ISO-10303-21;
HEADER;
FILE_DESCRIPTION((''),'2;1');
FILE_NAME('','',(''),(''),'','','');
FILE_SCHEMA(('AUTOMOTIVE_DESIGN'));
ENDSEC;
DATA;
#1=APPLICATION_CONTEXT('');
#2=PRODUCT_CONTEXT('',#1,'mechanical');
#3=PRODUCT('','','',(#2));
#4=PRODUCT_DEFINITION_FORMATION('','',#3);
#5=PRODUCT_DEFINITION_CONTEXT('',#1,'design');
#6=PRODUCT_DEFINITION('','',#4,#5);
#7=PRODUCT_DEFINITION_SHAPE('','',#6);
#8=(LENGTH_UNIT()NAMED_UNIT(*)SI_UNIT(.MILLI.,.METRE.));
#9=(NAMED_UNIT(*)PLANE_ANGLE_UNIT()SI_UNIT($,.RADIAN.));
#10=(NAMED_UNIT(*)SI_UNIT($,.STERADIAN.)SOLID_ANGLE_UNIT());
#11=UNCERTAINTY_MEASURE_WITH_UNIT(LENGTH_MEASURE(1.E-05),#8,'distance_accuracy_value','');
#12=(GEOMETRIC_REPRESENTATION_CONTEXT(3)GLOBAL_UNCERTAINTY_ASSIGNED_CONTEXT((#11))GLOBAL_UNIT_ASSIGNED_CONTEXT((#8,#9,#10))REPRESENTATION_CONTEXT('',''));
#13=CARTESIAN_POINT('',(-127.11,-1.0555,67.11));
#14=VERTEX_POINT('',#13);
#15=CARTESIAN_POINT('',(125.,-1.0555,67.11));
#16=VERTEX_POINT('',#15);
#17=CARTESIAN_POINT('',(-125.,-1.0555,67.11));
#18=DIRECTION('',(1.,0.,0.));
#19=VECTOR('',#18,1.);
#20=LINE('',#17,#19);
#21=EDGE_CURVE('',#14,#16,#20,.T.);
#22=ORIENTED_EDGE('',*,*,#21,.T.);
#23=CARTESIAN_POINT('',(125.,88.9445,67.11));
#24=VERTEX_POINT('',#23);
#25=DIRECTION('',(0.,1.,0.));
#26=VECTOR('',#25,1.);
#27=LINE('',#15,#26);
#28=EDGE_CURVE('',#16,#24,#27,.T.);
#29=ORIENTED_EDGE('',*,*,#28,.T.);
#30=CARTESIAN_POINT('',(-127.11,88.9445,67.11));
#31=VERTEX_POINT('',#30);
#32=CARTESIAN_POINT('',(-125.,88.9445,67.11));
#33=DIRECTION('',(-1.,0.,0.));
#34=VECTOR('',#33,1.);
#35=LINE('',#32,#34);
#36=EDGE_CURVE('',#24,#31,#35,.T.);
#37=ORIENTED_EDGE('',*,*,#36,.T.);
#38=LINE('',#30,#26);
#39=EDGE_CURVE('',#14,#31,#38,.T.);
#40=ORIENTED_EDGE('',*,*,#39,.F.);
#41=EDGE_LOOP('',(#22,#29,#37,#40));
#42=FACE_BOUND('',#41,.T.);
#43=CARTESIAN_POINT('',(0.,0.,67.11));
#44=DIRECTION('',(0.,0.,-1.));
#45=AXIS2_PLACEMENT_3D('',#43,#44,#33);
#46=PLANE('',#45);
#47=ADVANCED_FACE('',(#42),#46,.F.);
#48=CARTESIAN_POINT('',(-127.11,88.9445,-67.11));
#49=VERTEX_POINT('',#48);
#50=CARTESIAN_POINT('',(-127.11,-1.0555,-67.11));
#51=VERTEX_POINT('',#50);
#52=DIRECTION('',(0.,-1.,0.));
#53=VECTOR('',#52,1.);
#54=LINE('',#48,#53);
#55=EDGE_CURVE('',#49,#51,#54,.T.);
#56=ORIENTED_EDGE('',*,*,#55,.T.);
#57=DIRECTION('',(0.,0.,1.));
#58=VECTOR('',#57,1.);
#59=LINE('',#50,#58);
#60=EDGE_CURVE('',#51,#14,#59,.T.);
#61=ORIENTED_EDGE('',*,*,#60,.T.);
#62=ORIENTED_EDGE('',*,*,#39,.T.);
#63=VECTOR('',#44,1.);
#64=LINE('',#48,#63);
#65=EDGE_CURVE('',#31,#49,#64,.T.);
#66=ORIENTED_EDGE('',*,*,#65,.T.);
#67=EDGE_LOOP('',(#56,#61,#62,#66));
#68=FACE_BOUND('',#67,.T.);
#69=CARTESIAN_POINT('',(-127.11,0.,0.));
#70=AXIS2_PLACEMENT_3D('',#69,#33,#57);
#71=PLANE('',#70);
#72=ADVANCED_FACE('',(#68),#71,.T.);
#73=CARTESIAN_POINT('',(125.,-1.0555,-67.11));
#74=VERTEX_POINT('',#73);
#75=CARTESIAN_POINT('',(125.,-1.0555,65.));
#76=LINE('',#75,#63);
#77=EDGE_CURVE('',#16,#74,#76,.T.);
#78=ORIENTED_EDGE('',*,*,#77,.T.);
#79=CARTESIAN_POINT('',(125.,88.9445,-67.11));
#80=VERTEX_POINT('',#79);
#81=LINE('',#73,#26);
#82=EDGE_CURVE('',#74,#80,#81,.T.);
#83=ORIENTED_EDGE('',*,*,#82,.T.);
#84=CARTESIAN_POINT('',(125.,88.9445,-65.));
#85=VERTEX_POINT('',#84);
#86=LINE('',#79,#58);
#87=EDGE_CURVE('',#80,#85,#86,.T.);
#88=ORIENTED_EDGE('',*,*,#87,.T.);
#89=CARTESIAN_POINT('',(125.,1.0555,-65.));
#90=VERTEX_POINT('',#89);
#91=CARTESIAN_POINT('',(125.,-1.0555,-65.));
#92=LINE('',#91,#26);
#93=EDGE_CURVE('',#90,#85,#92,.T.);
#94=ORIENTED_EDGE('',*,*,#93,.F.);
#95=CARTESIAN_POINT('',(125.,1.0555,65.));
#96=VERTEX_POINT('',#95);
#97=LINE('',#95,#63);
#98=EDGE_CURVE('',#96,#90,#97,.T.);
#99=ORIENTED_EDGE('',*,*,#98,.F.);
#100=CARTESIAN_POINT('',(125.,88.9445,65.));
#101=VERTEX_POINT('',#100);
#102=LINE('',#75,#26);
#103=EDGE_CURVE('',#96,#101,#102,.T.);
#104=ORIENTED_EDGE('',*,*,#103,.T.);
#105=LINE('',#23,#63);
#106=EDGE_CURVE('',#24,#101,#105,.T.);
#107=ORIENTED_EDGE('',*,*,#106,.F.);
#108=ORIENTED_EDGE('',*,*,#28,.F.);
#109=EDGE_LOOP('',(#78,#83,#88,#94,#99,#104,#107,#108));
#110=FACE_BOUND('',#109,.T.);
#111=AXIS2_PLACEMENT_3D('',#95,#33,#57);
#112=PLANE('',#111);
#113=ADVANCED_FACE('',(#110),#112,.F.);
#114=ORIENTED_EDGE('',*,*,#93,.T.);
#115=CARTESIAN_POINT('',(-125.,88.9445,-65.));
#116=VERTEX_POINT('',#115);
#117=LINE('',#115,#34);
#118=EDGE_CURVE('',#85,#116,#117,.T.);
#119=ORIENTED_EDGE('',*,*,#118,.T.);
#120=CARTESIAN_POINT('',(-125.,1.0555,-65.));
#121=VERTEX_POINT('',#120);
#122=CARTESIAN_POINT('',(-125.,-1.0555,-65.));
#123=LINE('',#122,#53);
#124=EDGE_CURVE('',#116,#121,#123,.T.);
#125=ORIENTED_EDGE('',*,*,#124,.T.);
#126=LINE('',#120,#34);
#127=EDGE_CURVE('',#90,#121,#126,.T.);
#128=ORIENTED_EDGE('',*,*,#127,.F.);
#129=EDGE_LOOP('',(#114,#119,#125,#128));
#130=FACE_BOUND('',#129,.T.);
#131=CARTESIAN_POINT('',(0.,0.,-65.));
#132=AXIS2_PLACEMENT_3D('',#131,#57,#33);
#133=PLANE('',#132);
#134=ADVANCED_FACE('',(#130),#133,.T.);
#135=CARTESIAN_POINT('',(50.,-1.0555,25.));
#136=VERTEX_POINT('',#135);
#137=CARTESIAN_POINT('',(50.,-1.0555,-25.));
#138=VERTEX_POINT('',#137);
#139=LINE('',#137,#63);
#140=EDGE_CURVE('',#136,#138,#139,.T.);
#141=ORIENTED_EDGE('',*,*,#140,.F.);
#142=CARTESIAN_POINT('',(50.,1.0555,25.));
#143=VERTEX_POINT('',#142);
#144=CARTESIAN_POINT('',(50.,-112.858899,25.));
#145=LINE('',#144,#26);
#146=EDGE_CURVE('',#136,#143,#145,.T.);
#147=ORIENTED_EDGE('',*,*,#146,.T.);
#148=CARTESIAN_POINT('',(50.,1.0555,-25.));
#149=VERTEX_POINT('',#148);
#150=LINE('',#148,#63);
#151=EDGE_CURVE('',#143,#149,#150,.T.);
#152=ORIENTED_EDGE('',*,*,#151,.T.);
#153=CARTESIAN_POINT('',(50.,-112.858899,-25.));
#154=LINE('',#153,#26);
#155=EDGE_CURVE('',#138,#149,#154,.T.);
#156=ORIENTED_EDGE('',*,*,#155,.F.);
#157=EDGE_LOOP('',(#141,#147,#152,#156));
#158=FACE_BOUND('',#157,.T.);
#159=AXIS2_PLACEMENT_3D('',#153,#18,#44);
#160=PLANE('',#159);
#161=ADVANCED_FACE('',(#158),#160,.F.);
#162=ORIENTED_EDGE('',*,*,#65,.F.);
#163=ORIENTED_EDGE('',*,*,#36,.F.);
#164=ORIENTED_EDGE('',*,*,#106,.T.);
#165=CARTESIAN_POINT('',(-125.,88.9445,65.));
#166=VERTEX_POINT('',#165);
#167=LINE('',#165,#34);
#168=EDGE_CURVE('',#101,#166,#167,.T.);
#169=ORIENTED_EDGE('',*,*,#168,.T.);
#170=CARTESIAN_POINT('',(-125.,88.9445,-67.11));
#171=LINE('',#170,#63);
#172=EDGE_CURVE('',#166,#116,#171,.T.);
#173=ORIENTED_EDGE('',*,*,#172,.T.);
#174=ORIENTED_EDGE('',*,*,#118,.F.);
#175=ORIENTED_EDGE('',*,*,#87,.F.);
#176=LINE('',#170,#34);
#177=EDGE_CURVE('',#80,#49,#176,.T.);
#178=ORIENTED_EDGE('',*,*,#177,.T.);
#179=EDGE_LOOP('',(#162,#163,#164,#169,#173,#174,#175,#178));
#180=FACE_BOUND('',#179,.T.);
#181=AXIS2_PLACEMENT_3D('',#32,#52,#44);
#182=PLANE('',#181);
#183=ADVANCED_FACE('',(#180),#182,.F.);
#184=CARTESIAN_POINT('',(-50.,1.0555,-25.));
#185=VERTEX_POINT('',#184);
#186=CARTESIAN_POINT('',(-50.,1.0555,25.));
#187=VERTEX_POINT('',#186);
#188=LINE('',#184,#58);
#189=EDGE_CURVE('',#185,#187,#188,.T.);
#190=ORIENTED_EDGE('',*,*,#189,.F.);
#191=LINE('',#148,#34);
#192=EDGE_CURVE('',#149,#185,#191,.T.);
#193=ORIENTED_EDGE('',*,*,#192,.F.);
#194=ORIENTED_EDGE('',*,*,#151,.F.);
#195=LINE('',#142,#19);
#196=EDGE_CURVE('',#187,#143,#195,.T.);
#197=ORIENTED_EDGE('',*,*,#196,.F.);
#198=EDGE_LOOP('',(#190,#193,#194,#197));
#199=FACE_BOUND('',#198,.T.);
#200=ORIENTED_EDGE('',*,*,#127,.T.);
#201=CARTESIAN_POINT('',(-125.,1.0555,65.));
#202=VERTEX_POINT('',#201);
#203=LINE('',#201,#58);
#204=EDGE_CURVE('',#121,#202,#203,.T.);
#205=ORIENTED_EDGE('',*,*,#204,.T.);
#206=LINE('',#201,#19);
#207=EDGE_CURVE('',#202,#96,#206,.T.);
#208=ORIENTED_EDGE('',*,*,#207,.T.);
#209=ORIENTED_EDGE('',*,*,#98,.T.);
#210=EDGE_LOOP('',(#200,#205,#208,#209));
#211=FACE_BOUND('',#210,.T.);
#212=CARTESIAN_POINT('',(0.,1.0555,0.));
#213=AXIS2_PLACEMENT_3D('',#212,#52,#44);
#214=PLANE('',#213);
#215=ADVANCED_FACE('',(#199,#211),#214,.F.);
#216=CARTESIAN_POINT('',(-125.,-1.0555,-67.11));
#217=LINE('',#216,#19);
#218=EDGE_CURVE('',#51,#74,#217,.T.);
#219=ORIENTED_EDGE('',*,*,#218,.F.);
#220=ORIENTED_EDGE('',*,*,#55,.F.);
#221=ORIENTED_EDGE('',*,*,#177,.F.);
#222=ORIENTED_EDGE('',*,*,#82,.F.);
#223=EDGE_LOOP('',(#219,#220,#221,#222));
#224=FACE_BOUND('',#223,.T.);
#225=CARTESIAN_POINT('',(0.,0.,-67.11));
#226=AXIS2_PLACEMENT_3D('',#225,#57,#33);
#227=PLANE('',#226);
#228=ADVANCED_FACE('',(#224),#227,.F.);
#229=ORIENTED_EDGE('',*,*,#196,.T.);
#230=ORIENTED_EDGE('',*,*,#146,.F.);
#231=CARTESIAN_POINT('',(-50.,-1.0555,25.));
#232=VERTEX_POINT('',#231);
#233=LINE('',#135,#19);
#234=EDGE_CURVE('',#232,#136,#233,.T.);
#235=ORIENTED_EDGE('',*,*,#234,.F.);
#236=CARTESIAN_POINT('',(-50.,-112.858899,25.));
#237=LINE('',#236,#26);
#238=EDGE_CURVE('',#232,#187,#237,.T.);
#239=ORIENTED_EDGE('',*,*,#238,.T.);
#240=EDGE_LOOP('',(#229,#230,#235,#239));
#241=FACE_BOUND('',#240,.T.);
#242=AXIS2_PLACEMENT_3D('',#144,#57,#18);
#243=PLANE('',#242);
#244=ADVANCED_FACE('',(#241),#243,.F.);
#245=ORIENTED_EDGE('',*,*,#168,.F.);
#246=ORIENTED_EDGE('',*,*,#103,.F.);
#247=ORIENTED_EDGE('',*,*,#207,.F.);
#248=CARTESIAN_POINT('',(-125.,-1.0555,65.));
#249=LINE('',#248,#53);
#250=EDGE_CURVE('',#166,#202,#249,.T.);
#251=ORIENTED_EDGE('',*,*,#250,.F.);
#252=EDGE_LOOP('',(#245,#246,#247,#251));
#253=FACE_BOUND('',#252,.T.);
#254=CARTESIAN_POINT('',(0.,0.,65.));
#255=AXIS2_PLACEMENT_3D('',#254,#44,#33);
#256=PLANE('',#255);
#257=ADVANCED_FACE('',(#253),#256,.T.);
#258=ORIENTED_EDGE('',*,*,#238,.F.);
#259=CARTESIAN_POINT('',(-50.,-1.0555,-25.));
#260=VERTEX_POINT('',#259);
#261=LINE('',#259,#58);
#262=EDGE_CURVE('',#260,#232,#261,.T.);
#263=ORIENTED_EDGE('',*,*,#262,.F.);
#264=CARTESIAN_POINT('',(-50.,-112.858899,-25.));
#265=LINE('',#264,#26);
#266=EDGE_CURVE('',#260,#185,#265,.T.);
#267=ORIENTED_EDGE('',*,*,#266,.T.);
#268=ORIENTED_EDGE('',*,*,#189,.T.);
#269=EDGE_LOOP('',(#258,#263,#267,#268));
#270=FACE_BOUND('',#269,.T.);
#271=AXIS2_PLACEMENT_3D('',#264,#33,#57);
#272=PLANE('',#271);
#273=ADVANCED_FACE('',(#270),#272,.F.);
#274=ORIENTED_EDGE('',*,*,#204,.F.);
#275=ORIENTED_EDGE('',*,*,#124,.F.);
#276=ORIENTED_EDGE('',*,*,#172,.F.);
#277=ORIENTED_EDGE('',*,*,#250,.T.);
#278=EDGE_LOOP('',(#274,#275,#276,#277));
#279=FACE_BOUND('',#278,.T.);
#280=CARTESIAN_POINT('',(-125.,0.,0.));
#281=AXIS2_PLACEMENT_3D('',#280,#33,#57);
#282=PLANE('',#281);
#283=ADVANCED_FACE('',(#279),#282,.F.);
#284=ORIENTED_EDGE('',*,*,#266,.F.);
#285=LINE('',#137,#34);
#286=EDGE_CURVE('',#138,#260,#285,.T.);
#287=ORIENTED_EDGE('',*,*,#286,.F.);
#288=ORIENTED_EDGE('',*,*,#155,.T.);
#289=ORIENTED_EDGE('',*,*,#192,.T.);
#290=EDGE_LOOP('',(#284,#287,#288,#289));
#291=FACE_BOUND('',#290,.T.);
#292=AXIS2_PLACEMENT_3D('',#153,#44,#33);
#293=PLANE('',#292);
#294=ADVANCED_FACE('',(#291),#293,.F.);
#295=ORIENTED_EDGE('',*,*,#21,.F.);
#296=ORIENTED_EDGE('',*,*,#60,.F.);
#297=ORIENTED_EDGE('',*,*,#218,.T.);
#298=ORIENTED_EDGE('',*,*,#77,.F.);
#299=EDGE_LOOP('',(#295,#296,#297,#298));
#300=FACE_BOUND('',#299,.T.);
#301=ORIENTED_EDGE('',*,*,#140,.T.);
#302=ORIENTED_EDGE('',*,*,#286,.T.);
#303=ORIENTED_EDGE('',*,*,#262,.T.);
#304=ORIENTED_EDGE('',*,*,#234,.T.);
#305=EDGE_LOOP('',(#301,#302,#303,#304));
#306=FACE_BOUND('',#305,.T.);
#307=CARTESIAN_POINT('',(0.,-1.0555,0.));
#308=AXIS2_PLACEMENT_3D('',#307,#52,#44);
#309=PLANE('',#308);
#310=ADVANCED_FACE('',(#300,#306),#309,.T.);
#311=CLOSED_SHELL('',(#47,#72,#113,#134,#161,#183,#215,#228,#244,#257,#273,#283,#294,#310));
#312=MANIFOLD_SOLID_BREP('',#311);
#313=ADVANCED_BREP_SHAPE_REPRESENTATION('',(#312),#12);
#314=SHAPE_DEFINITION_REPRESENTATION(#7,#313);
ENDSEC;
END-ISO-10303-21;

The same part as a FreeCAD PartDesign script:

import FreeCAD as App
import Part
import Sketcher

V = App.Vector


def add_polygon(sketch, points):
    """Adds a closed chain of lines whose ends are joined by coincident constraints."""
    first, n = sketch.GeometryCount, len(points)
    for a, b in zip(points, points[1:] + points[:1]):
        sketch.addGeometry(Part.LineSegment(App.Vector(*a, 0), App.Vector(*b, 0)), False)
    for i in range(n):
        sketch.addConstraint(Sketcher.Constraint("Coincident", first + i, 2, first + (i + 1) % n, 1))

doc = App.newDocument("Part")
body = doc.addObject("PartDesign::Body", "Body")

# Sketch on XZ plane
sketch1 = body.newObject("Sketcher::SketchObject", "Sketch")
sketch1.AttachmentSupport = (doc.getObject("XZ_Plane"), [""])
sketch1.MapMode = "FlatFace"
add_polygon(sketch1, [(-125, -65), (-125, 65), (125, 65), (125, -65)])  # lines 0-3
sketch1.addConstraint(Sketcher.Constraint("Vertical", 0))
sketch1.addConstraint(Sketcher.Constraint("Horizontal", 1))
sketch1.addConstraint(Sketcher.Constraint("Vertical", 2))
sketch1.addConstraint(Sketcher.Constraint("Horizontal", 3))
sketch1.addConstraint(Sketcher.Constraint("Symmetric", 0, 2, 2, 2, -1, 1))
sketch1.addConstraint(Sketcher.Constraint("DistanceX", 1, 1, 1, 2, 250.0))
sketch1.addConstraint(Sketcher.Constraint("DistanceY", 0, 1, 0, 2, 130.0))
pad1 = body.newObject("PartDesign::Pad", "Pad")
pad1.Profile = sketch1
pad1.Length = 2.111
pad1.Midplane = True

# Sketch on XY plane
sketch2 = body.newObject("Sketcher::SketchObject", "Sketch001")
sketch2.AttachmentSupport = (doc.getObject("XY_Plane"), [""])
sketch2.MapMode = "FlatFace"
sketch2.AttachmentOffset = App.Placement(V(0, 0, 65), App.Rotation())
add_polygon(sketch2, [(-125, 89), (-125, -1), (125, -1), (125, 89)])  # lines 0-3
sketch2.addConstraint(Sketcher.Constraint("Vertical", 0))
sketch2.addConstraint(Sketcher.Constraint("Horizontal", 1))
sketch2.addConstraint(Sketcher.Constraint("Vertical", 2))
sketch2.addConstraint(Sketcher.Constraint("Horizontal", 3))
sketch2.addConstraint(Sketcher.Constraint("DistanceX", 1, 1, 1, 2, 250.0))
sketch2.addConstraint(Sketcher.Constraint("DistanceY", 0, 2, 0, 1, 90.0))
sketch2.addConstraint(Sketcher.Constraint("DistanceX", 0, 2, -1, 1, 125.0))
sketch2.addConstraint(Sketcher.Constraint("DistanceY", 0, 2, -1, 1, 1.0555))
pad2 = body.newObject("PartDesign::Pad", "Pad001")
pad2.Profile = sketch2
pad2.Length = 2.11
doc.recompute()

mirrored = body.newObject("PartDesign::Mirrored", "Mirrored")
mirrored.Originals = [pad2]
mirrored.MirrorPlane = (doc.getObject("XY_Plane"), [""])
body.Tip = mirrored

# Sketch on XZ plane
sketch3 = body.newObject("Sketcher::SketchObject", "Sketch002")
sketch3.AttachmentSupport = (doc.getObject("XZ_Plane"), [""])
sketch3.MapMode = "FlatFace"
sketch3.AttachmentOffset = App.Placement(V(0, 0, -1.0555), App.Rotation())
add_polygon(sketch3, [(-50, -25), (-50, 25), (50, 25), (50, -25)])  # lines 0-3
sketch3.addConstraint(Sketcher.Constraint("Vertical", 0))
sketch3.addConstraint(Sketcher.Constraint("Horizontal", 1))
sketch3.addConstraint(Sketcher.Constraint("Vertical", 2))
sketch3.addConstraint(Sketcher.Constraint("Horizontal", 3))
sketch3.addConstraint(Sketcher.Constraint("Symmetric", 0, 2, 2, 2, -1, 1))
sketch3.addConstraint(Sketcher.Constraint("DistanceX", 1, 1, 1, 2, 100.0))
sketch3.addConstraint(Sketcher.Constraint("DistanceY", 0, 1, 0, 2, 50.0))
pocket1 = body.newObject("PartDesign::Pocket", "Pocket")
pocket1.Profile = sketch3
pocket1.Length = 2.111
pocket1.Reversed = True

# Sketch on YZ plane
sketch4 = body.newObject("Sketcher::SketchObject", "Sketch003")
sketch4.AttachmentSupport = (doc.getObject("YZ_Plane"), [""])
sketch4.MapMode = "FlatFace"
sketch4.AttachmentOffset = App.Placement(V(0, 0, -125), App.Rotation())
add_polygon(sketch4, [(89, -67), (-1, -67), (-1, 67), (89, 67)])  # lines 0-3
sketch4.addConstraint(Sketcher.Constraint("Horizontal", 0))
sketch4.addConstraint(Sketcher.Constraint("Vertical", 1))
sketch4.addConstraint(Sketcher.Constraint("Horizontal", 2))
sketch4.addConstraint(Sketcher.Constraint("Vertical", 3))
sketch4.addConstraint(Sketcher.Constraint("DistanceX", 0, 2, 0, 1, 90.0))
sketch4.addConstraint(Sketcher.Constraint("DistanceY", 1, 1, 1, 2, 134.22))
sketch4.addConstraint(Sketcher.Constraint("DistanceY", 0, 2, -1, 1, 67.11))
sketch4.addConstraint(Sketcher.Constraint("DistanceX", 0, 2, -1, 1, 1.0555))
pad3 = body.newObject("PartDesign::Pad", "Pad002")
pad3.Profile = sketch4
pad3.Length = 2.11
pad3.Reversed = True

doc.recompute()
